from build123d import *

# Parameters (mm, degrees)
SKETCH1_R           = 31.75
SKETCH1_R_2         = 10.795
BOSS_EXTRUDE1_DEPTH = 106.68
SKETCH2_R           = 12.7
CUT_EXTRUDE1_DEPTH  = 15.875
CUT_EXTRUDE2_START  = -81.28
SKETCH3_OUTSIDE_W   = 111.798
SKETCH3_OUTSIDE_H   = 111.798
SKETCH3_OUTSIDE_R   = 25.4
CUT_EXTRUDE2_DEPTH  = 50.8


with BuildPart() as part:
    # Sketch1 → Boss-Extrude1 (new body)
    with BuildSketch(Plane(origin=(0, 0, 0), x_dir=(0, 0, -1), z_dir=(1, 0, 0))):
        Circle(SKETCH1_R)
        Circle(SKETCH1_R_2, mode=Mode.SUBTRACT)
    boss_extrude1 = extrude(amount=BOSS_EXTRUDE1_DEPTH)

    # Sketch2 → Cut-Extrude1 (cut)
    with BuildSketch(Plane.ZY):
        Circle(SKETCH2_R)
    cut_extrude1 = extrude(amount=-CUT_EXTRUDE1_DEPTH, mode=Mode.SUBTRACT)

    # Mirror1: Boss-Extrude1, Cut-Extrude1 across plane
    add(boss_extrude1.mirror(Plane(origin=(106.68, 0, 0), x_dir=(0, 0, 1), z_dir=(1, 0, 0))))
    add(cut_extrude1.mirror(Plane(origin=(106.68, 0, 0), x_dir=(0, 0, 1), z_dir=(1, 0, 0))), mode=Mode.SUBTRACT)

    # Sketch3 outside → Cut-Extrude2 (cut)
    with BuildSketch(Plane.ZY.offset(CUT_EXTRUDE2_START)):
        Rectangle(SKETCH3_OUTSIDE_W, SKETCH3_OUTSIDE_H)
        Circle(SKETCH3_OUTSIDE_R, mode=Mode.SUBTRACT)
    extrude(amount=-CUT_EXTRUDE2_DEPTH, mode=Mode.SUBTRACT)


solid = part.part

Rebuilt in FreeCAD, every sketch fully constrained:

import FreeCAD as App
import Part
import Sketcher
Q = App.Units.Quantity


def add_polygon(sketch, points):
    """Adds a closed chain of lines whose ends are joined by coincident constraints."""
    first, n = sketch.GeometryCount, len(points)
    for a, b in zip(points, points[1:] + points[:1]):
        sketch.addGeometry(Part.LineSegment(App.Vector(*a, 0), App.Vector(*b, 0)), False)
    for i in range(n):
        sketch.addConstraint(Sketcher.Constraint("Coincident", first + i, 2, first + (i + 1) % n, 1))

doc = App.newDocument("Part")
body = doc.addObject("PartDesign::Body", "Body")

# Sketch on YZ plane
sketch1 = body.newObject("Sketcher::SketchObject", "Sketch")
sketch1.AttachmentSupport = (doc.getObject("YZ_Plane"), [""])
sketch1.MapMode = "FlatFace"
sketch1.addGeometry(Part.Circle(App.Vector(0, 0, 0), App.Vector(0, 0, 1), 32), False)
sketch1.addGeometry(Part.Circle(App.Vector(0, 0, 0), App.Vector(0, 0, 1), 11), False)
sketch1.addConstraint(Sketcher.Constraint("Coincident", 0, 3, -1, 1))
sketch1.addConstraint(Sketcher.Constraint("Coincident", 1, 3, -1, 1))
sketch1.addConstraint(Sketcher.Constraint("Diameter", 0, Q("2.5 in")))
sketch1.addConstraint(Sketcher.Constraint("Diameter", 1, Q("0.85 in")))
pad1 = body.newObject("PartDesign::Pad", "Pad")
pad1.Profile = sketch1
pad1.Length = Q("4.2 in")

# Sketch on YZ plane
sketch2 = body.newObject("Sketcher::SketchObject", "Sketch001")
sketch2.AttachmentSupport = (doc.getObject("YZ_Plane"), [""])
sketch2.MapMode = "FlatFace"
sketch2.addGeometry(Part.Circle(App.Vector(0, 0, 0), App.Vector(0, 0, 1), 13), False)
sketch2.addConstraint(Sketcher.Constraint("Coincident", 0, 3, -1, 1))
sketch2.addConstraint(Sketcher.Constraint("Diameter", 0, Q("1 in")))
pocket1 = body.newObject("PartDesign::Pocket", "Pocket")
pocket1.Profile = sketch2
pocket1.Length = Q("0.625 in")
pocket1.Reversed = True
doc.recompute()

datumplane = body.newObject("PartDesign::Plane", "DatumPlane")
datumplane.AttachmentSupport = (doc.getObject("YZ_Plane"), [""])
datumplane.MapMode = "FlatFace"
datumplane.AttachmentOffset = App.Placement(App.Vector(0, 0, 4.2 * 25.4), App.Rotation())
mirrored = body.newObject("PartDesign::Mirrored", "Mirrored")
mirrored.Originals = [pad1, pocket1]
mirrored.MirrorPlane = (datumplane, [""])
body.Tip = mirrored

# Sketch on YZ plane
sketch3 = body.newObject("Sketcher::SketchObject", "Sketch002")
sketch3.AttachmentSupport = (doc.getObject("YZ_Plane"), [""])
sketch3.MapMode = "FlatFace"
sketch3.AttachmentOffset = App.Placement(App.Vector(0, 0, 3.2 * 25.4), App.Rotation())
add_polygon(sketch3, [(56, -56), (-56, -56), (-56, 56), (56, 56)])  # lines 0-3
sketch3.addGeometry(Part.Circle(App.Vector(0, 0, 0), App.Vector(0, 0, 1), 25), False)  # 4
sketch3.addConstraint(Sketcher.Constraint("Horizontal", 0))
sketch3.addConstraint(Sketcher.Constraint("Vertical", 1))
sketch3.addConstraint(Sketcher.Constraint("Horizontal", 2))
sketch3.addConstraint(Sketcher.Constraint("Vertical", 3))
sketch3.addConstraint(Sketcher.Constraint("Coincident", 4, 3, -1, 1))
sketch3.addConstraint(Sketcher.Constraint("Symmetric", 0, 2, 2, 2, -1, 1))
sketch3.addConstraint(Sketcher.Constraint("Equal", 2, 1))
sketch3.addConstraint(Sketcher.Constraint("Diameter", 4, Q("2 in")))
sketch3.addConstraint(Sketcher.Constraint("DistanceX", 0, 2, 0, 1, 111.798))
pocket2 = body.newObject("PartDesign::Pocket", "Pocket001")
pocket2.Profile = sketch3
pocket2.Length = Q("2 in")
pocket2.Reversed = True

doc.recompute()
